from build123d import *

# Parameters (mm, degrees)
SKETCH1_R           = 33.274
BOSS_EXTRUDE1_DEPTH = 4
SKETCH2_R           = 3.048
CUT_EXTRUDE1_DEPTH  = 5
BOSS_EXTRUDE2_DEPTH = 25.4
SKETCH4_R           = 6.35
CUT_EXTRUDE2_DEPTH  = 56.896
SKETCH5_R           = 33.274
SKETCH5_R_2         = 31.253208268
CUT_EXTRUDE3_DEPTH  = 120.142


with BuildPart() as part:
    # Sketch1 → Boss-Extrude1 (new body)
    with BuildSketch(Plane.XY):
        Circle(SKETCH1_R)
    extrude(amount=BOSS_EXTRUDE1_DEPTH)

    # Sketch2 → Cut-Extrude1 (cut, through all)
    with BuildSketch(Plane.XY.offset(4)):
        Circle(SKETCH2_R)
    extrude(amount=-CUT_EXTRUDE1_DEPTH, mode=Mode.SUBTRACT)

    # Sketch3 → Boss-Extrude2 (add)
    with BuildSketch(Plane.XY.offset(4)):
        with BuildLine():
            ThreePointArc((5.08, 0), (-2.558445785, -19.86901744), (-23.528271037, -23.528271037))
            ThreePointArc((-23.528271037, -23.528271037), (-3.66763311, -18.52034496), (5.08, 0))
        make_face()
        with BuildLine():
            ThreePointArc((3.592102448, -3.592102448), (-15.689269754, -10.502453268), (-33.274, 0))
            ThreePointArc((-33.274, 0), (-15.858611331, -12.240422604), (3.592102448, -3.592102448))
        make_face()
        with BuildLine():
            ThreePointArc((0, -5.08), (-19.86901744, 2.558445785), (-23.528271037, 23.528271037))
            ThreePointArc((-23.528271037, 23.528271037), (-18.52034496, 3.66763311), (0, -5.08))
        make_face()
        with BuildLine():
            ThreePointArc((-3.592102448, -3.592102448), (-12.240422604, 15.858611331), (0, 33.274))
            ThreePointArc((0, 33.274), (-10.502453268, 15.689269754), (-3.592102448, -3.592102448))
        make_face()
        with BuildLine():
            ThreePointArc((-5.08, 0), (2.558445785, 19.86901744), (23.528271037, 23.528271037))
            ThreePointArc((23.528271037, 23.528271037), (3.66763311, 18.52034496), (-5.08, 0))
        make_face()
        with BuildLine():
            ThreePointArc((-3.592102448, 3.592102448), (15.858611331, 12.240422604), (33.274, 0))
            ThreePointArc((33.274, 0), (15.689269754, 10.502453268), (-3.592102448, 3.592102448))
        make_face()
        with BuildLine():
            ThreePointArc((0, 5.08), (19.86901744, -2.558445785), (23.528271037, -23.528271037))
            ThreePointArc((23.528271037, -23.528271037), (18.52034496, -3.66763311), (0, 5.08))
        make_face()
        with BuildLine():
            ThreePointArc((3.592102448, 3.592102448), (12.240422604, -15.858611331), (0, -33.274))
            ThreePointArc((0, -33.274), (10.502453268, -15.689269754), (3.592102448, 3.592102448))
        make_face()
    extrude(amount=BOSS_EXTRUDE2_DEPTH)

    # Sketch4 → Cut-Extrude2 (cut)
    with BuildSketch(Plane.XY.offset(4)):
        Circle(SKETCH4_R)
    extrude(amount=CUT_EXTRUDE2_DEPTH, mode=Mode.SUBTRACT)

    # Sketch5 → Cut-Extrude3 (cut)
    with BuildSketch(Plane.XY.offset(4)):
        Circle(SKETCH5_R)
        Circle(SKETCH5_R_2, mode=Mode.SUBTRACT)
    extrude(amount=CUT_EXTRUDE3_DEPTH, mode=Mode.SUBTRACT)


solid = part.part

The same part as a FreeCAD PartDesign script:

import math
import FreeCAD as App
import Part
import Sketcher
Q = App.Units.Quantity

doc = App.newDocument("Part")
body = doc.addObject("PartDesign::Body", "Body")

sketch1 = body.newObject("Sketcher::SketchObject", "Sketch")
sketch1.AttachmentSupport = (doc.getObject("XY_Plane"), [""])
sketch1.MapMode = "FlatFace"
sketch1.addGeometry(Part.Circle(App.Vector(0, 0, 0), App.Vector(0, 0, 1), 33), False)
sketch1.addConstraint([
    Sketcher.Constraint("Coincident", 0, 3, -1, 1),
    Sketcher.Constraint("Diameter", 0, Q("2.62 in")),
])
pad1 = body.newObject("PartDesign::Pad", "Pad")
pad1.Profile = sketch1
pad1.Length = 4

sketch2 = body.newObject("Sketcher::SketchObject", "Sketch001")
sketch2.AttachmentSupport = (doc.getObject("XY_Plane"), [""])
sketch2.MapMode = "FlatFace"
sketch2.AttachmentOffset = App.Placement(App.Vector(0, 0, 4), App.Rotation())
sketch2.addGeometry(Part.Circle(App.Vector(0, 0, 0), App.Vector(0, 0, 1), 3), False)
sketch2.addConstraint([
    Sketcher.Constraint("Coincident", 0, 3, -1, 1),
    Sketcher.Constraint("Diameter", 0, Q("0.24 in")),
])
pocket1 = body.newObject("PartDesign::Pocket", "Pocket")
pocket1.Profile = sketch2
pocket1.Type = "ThroughAll"

sketch3 = body.newObject("Sketcher::SketchObject", "Sketch002")
sketch3.AttachmentSupport = (doc.getObject("XY_Plane"), [""])
sketch3.MapMode = "FlatFace"
sketch3.AttachmentOffset = App.Placement(App.Vector(0, 0, 4), App.Rotation())
sketch3.addGeometry([
    Part.ArcOfCircle(Part.Circle(App.Vector(-16, -3, 0), App.Vector(0, 0, 1), 22), math.radians(-110), math.radians(9)),
    Part.ArcOfCircle(Part.Circle(App.Vector(-19, 0, 0), App.Vector(0, 0, 1), 24), math.radians(-101), math.radians(0)),
    Part.ArcOfCircle(Part.Circle(App.Vector(-13, 13, 0), App.Vector(0, 0, 1), 24), math.radians(-146), math.radians(-45)),
    Part.ArcOfCircle(Part.Circle(App.Vector(-14, 9, 0), App.Vector(0, 0, 1), 22), math.radians(-155), math.radians(-36)),
    Part.ArcOfCircle(Part.Circle(App.Vector(-3, 16, 0), App.Vector(0, 0, 1), 22), math.radians(160), math.radians(279)),
    Part.ArcOfCircle(Part.Circle(App.Vector(0, 19, 0), App.Vector(0, 0, 1), 24), math.radians(169), math.radians(270)),
    Part.ArcOfCircle(Part.Circle(App.Vector(9, 14, 0), App.Vector(0, 0, 1), 22), math.radians(115), math.radians(234)),
    Part.ArcOfCircle(Part.Circle(App.Vector(13, 13, 0), App.Vector(0, 0, 1), 24), math.radians(124), math.radians(225)),
    Part.ArcOfCircle(Part.Circle(App.Vector(16, 3, 0), App.Vector(0, 0, 1), 22), math.radians(70), math.radians(189)),
    Part.ArcOfCircle(Part.Circle(App.Vector(19, 0, 0), App.Vector(0, 0, 1), 24), math.radians(79), math.radians(180)),
    Part.ArcOfCircle(Part.Circle(App.Vector(14, -9, 0), App.Vector(0, 0, 1), 22), math.radians(25), math.radians(144)),
    Part.ArcOfCircle(Part.Circle(App.Vector(13, -13, 0), App.Vector(0, 0, 1), 24), math.radians(34), math.radians(135)),
    Part.ArcOfCircle(Part.Circle(App.Vector(3, -16, 0), App.Vector(0, 0, 1), 22), math.radians(-20), math.radians(99)),
    Part.ArcOfCircle(Part.Circle(App.Vector(0, -19, 0), App.Vector(0, 0, 1), 24), math.radians(-11), math.radians(90)),
    Part.ArcOfCircle(Part.Circle(App.Vector(-9, -14, 0), App.Vector(0, 0, 1), 22), math.radians(-65), math.radians(54)),
    Part.ArcOfCircle(Part.Circle(App.Vector(-13, -13, 0), App.Vector(0, 0, 1), 24), math.radians(-56), math.radians(45)),
], False)
sketch3.addConstraint([
    Sketcher.Constraint("Coincident", 0, 1, 1, 1),
    Sketcher.Constraint("Coincident", 1, 2, 0, 2),
    Sketcher.Constraint("Coincident", 2, 1, 3, 1),
    Sketcher.Constraint("Coincident", 3, 2, 2, 2),
    Sketcher.Constraint("Coincident", 4, 1, 5, 1),
    Sketcher.Constraint("Coincident", 5, 2, 4, 2),
    Sketcher.Constraint("Coincident", 6, 1, 7, 1),
    Sketcher.Constraint("Coincident", 7, 2, 6, 2),
    Sketcher.Constraint("Coincident", 8, 1, 9, 1),
    Sketcher.Constraint("Coincident", 9, 2, 8, 2),
    Sketcher.Constraint("Coincident", 10, 1, 11, 1),
    Sketcher.Constraint("Coincident", 11, 2, 10, 2),
    Sketcher.Constraint("Coincident", 12, 1, 13, 1),
    Sketcher.Constraint("Coincident", 13, 2, 12, 2),
    Sketcher.Constraint("Coincident", 14, 1, 15, 1),
    Sketcher.Constraint("Coincident", 15, 2, 14, 2),
    Sketcher.Constraint("Equal", 1, 2),
    Sketcher.Constraint("Equal", 0, 3),
    Sketcher.Constraint("Equal", 3, 4),
    Sketcher.Constraint("Equal", 2, 5),
    Sketcher.Constraint("Equal", 4, 6),
    Sketcher.Constraint("Equal", 5, 7),
    Sketcher.Constraint("Equal", 6, 8),
    Sketcher.Constraint("Equal", 7, 9),
    Sketcher.Constraint("Equal", 8, 10),
    Sketcher.Constraint("Equal", 9, 11),
    Sketcher.Constraint("Equal", 10, 12),
    Sketcher.Constraint("Equal", 11, 13),
    Sketcher.Constraint("Equal", 12, 14),
    Sketcher.Constraint("Equal", 13, 15),
    Sketcher.Constraint("Symmetric", 0, 3, 8, 3, -1, 1),
    Sketcher.Constraint("Symmetric", 1, 3, 9, 3, -1, 1),
    Sketcher.Constraint("Symmetric", 3, 3, 10, 3, -1, 1),
    Sketcher.Constraint("Symmetric", 2, 3, 11, 3, -1, 1),
    Sketcher.Constraint("Symmetric", 4, 3, 12, 3, -1, 1),
    Sketcher.Constraint("Symmetric", 5, 3, 13, 3, -1, 1),
    Sketcher.Constraint("Symmetric", 6, 3, 14, 3, -1, 1),
    Sketcher.Constraint("Symmetric", 7, 3, 15, 3, -1, 1),
    Sketcher.Constraint("Symmetric", 2, 3, 7, 3, -2),
    Sketcher.Constraint("Symmetric", 4, 1, 8, 1, -2),
    Sketcher.Constraint("PointOnObject", 1, 3, -1),
    Sketcher.Constraint("PointOnObject", 5, 3, -2),
    Sketcher.Constraint("PointOnObject", 1, 2, -1),
    Sketcher.Constraint("PointOnObject", 2, 1, -1),
    Sketcher.Constraint("PointOnObject", 5, 2, -2),
    Sketcher.Constraint("PointOnObject", 6, 1, -2),
    Sketcher.Constraint("Horizontal", 3, 2, 7, 2),
    Sketcher.Constraint("Radius", 0, Q("0.85 in")),
    Sketcher.Constraint("DistanceX", -1, 1, 1, 2, Q("0.2 in")),
    Sketcher.Constraint("DistanceY", 5, 2, -1, 1, Q("0.2 in")),
    Sketcher.Constraint("DistanceX", 2, 1, -1, 1, Q("1.31 in")),
    Sketcher.Constraint("DistanceY", -1, 1, 6, 1, Q("1.31 in")),
    Sketcher.Constraint("Radius", 1, 23.979301),
    Sketcher.Constraint("DistanceX", 3, 3, 8, 3, 30.037302),
])
pad2 = body.newObject("PartDesign::Pad", "Pad001")
pad2.Profile = sketch3
pad2.Length = Q("1 in")

sketch4 = body.newObject("Sketcher::SketchObject", "Sketch003")
sketch4.AttachmentSupport = (doc.getObject("XY_Plane"), [""])
sketch4.MapMode = "FlatFace"
sketch4.AttachmentOffset = App.Placement(App.Vector(0, 0, 4), App.Rotation())
sketch4.addGeometry(Part.Circle(App.Vector(0, 0, 0), App.Vector(0, 0, 1), 6), False)
sketch4.addConstraint([
    Sketcher.Constraint("Coincident", 0, 3, -1, 1),
    Sketcher.Constraint("Diameter", 0, Q("0.5 in")),
])
pocket2 = body.newObject("PartDesign::Pocket", "Pocket001")
pocket2.Profile = sketch4
pocket2.Length = Q("2.24 in")
pocket2.Reversed = True

sketch5 = body.newObject("Sketcher::SketchObject", "Sketch004")
sketch5.AttachmentSupport = (doc.getObject("XY_Plane"), [""])
sketch5.MapMode = "FlatFace"
sketch5.AttachmentOffset = App.Placement(App.Vector(0, 0, 4), App.Rotation())
sketch5.addGeometry([
    Part.Circle(App.Vector(0, 0, 0), App.Vector(0, 0, 1), 33),
    Part.Circle(App.Vector(0, 0, 0), App.Vector(0, 0, 1), 31),
], False)
sketch5.addConstraint([
    Sketcher.Constraint("Coincident", 0, 3, -1, 1),
    Sketcher.Constraint("Coincident", 1, 3, -1, 1),
    Sketcher.Constraint("Diameter", 0, Q("2.62 in")),
    Sketcher.Constraint("Diameter", 1, 62.506417),
])
pocket3 = body.newObject("PartDesign::Pocket", "Pocket002")
pocket3.Profile = sketch5
pocket3.Length = Q("4.73 in")
pocket3.Reversed = True

doc.recompute()
